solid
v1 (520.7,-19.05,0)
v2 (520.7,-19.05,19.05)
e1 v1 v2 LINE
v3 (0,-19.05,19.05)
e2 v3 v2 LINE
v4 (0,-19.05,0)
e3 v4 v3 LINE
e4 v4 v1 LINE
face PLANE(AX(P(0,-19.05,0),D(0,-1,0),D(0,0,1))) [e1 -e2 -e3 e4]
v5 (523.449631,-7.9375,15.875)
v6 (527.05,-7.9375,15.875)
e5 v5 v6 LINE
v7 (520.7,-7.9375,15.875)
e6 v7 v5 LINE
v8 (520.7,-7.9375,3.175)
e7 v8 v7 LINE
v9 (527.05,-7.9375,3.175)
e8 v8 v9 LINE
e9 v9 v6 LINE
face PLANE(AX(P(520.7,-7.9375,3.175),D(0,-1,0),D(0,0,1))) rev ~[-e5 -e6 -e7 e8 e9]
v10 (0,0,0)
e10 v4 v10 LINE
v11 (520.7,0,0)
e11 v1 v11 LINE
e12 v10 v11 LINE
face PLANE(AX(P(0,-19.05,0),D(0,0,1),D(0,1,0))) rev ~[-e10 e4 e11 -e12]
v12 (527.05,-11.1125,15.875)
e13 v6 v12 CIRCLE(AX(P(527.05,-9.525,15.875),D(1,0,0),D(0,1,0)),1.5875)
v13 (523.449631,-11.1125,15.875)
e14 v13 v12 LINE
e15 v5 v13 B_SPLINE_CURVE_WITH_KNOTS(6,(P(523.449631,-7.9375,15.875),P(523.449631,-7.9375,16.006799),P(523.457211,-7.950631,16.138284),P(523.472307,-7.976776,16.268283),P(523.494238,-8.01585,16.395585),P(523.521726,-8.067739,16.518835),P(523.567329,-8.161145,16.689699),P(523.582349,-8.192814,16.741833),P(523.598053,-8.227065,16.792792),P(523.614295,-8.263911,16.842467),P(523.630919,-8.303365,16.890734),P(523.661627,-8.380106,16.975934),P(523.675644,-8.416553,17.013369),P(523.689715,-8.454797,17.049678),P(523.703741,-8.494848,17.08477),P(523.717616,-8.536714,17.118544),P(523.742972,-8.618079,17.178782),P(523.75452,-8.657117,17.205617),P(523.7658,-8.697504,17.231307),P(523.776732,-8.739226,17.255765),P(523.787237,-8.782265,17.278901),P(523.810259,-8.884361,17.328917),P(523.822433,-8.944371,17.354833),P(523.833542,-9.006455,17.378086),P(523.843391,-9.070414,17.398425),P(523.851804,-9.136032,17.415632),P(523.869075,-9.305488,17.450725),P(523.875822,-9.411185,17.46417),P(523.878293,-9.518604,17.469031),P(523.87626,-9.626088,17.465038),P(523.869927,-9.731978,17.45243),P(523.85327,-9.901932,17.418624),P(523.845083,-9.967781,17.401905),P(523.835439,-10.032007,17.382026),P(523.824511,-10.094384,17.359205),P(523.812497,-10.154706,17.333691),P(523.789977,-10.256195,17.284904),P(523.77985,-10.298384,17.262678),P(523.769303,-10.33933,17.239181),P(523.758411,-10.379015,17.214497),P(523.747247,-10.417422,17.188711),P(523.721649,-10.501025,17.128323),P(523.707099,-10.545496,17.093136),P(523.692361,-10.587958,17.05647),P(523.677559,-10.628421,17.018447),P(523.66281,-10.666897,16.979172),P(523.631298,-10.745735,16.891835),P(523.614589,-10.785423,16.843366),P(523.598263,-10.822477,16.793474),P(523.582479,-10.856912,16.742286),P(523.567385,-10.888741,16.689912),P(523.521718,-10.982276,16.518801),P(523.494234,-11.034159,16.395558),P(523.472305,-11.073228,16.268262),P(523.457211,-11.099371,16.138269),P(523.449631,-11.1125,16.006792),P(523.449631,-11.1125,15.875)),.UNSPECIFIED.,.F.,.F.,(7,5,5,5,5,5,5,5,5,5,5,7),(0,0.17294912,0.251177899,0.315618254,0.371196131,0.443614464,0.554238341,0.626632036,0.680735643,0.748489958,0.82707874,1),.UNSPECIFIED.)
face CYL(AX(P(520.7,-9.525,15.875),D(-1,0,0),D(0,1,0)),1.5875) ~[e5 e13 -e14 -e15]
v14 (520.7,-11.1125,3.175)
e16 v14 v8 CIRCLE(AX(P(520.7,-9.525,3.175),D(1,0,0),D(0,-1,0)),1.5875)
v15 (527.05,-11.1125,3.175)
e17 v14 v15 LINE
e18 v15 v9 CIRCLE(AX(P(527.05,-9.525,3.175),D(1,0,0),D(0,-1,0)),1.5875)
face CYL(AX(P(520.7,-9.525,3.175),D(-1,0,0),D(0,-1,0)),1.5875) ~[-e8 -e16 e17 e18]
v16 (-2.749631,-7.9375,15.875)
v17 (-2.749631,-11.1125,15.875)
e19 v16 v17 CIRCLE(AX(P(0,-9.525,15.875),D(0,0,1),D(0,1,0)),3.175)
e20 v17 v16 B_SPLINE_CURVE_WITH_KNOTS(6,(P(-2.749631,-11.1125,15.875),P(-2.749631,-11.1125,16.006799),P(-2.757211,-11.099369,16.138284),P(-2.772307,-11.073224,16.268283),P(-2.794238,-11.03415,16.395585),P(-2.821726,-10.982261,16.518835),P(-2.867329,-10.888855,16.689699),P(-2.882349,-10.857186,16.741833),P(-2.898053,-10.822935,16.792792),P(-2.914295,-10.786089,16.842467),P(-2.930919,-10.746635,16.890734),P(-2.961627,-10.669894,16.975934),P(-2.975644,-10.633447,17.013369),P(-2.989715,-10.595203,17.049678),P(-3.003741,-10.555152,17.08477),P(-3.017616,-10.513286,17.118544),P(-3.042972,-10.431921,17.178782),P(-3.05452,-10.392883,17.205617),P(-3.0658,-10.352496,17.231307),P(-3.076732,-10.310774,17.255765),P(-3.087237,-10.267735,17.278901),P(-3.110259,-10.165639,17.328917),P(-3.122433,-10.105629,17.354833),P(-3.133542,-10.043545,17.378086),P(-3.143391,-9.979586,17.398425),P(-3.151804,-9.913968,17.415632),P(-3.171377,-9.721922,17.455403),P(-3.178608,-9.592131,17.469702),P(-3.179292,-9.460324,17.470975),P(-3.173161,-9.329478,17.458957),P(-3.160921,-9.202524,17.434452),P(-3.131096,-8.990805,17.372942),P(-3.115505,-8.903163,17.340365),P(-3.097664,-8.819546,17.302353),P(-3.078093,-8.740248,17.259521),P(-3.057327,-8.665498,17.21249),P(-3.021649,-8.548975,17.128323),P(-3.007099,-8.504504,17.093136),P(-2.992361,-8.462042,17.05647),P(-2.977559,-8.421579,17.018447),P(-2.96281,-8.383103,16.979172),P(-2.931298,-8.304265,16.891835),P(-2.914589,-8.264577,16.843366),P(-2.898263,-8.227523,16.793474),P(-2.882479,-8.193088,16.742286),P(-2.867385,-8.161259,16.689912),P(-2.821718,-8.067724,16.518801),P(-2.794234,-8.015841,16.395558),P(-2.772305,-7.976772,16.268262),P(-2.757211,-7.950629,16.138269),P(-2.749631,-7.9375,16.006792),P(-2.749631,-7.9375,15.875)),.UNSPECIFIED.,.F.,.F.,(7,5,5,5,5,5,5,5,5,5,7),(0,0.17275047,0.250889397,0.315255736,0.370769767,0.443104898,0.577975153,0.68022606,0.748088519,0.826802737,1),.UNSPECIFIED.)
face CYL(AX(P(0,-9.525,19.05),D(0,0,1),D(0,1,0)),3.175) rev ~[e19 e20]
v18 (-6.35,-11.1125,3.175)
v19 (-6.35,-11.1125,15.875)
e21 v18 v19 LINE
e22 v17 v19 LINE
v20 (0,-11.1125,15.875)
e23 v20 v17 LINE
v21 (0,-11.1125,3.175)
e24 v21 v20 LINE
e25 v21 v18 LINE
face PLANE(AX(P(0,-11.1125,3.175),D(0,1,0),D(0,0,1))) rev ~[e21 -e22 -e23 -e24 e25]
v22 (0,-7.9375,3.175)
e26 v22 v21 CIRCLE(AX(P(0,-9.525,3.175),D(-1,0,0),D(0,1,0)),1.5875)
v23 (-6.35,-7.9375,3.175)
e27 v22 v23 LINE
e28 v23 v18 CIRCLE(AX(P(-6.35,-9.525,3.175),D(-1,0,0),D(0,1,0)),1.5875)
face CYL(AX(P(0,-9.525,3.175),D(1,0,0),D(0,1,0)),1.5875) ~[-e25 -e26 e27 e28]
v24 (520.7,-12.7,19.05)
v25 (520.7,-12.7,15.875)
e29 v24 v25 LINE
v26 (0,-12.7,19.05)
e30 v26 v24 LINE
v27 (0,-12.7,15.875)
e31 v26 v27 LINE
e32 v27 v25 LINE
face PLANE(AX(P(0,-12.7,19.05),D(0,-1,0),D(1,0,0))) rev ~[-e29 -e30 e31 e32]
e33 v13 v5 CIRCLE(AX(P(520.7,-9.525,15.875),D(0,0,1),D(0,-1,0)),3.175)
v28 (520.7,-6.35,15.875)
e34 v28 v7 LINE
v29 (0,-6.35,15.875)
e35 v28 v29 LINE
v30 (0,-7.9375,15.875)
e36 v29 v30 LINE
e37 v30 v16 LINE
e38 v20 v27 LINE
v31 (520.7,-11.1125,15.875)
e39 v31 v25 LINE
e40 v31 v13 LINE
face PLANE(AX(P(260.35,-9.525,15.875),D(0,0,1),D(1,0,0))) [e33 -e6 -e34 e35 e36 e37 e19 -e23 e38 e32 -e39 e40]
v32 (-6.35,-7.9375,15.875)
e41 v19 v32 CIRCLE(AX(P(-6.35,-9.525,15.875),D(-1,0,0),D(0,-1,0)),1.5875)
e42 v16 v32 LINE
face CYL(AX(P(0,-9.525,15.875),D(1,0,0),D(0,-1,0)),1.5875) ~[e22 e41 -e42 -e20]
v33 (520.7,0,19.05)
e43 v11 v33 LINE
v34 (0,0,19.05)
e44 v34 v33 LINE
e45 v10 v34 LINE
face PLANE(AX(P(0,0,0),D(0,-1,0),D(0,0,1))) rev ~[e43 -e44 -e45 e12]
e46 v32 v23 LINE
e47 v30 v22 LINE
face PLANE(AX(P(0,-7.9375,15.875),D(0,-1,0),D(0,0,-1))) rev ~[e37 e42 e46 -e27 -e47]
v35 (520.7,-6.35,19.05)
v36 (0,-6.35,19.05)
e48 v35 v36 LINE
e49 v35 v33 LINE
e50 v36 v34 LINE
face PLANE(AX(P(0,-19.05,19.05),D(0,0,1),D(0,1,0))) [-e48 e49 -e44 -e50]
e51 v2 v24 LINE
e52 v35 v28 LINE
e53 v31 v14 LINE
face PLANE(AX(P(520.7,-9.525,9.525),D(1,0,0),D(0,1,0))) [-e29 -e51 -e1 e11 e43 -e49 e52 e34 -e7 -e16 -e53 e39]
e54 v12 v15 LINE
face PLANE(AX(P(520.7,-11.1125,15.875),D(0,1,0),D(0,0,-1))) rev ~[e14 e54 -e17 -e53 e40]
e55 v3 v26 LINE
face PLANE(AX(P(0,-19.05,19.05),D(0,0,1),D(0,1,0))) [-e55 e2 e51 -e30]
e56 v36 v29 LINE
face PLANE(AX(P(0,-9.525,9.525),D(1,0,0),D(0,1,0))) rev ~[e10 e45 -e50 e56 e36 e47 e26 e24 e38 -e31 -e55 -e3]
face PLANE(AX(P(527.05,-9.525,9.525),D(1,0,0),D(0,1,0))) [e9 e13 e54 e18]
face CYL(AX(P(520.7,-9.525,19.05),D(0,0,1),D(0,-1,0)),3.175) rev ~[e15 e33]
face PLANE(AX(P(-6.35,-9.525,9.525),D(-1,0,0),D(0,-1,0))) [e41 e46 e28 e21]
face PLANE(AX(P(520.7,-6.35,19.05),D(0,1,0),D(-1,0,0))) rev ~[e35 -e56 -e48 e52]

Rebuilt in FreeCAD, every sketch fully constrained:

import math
import FreeCAD as App
import Part
import Sketcher
from FreeCAD import Vector
Q = App.Units.Quantity

doc = App.newDocument("Part")
body = doc.addObject("PartDesign::Body", "Body")

# Sketch on YZ plane
sketch1 = doc.addObject("Sketcher::SketchObject", "Sketch")
body.addObject(sketch1)
sketch1.AttachmentSupport = (doc.YZ_Plane, [""])
sketch1.MapMode = "FlatFace"
sketch1.addGeometry(Part.LineSegment(Vector(-19, 19, 0), Vector(-19, 0, 0)), False)
sketch1.addGeometry(Part.LineSegment(Vector(-19, 0, 0), Vector(0, 0, 0)), False)
sketch1.addGeometry(Part.LineSegment(Vector(0, 0, 0), Vector(0, 19, 0)), False)
sketch1.addGeometry(Part.LineSegment(Vector(0, 19, 0), Vector(-19, 19, 0)), False)
sketch1.addConstraint(Sketcher.Constraint("Coincident", 0, 2, 1, 1))
sketch1.addConstraint(Sketcher.Constraint("Coincident", 1, 2, 2, 1))
sketch1.addConstraint(Sketcher.Constraint("Coincident", 2, 2, 3, 1))
sketch1.addConstraint(Sketcher.Constraint("Coincident", 3, 2, 0, 1))
sketch1.addConstraint(Sketcher.Constraint("Vertical", 0))
sketch1.addConstraint(Sketcher.Constraint("Horizontal", 1))
sketch1.addConstraint(Sketcher.Constraint("Vertical", 2))
sketch1.addConstraint(Sketcher.Constraint("Horizontal", 3))
sketch1.addConstraint(Sketcher.Constraint("Coincident", 1, 2, -1, 1))
sketch1.addConstraint(Sketcher.Constraint("Equal", 3, 0))
sketch1.addConstraint(Sketcher.Constraint("DistanceX", 1, 1, 1, 2, Q("0.75 in")))
pad1 = doc.addObject("PartDesign::Pad", "Pad")
body.addObject(pad1)
pad1.Profile = sketch1
pad1.Length = Q("20.5 in")

# Sketch on YZ plane
sketch2 = doc.addObject("Sketcher::SketchObject", "Sketch001")
body.addObject(sketch2)
sketch2.AttachmentSupport = (doc.YZ_Plane, [""])
sketch2.MapMode = "FlatFace"
sketch2.AttachmentOffset = App.Placement(Vector(0, 0, 20.5 * 25.4), App.Rotation())
sketch2.addGeometry(Part.ArcOfCircle(Part.Circle(Vector(-9.5, 15.9, 0), Vector(0, 0, 1), 1.6), math.radians(0), math.radians(180)), False)
sketch2.addGeometry(Part.LineSegment(Vector(-11.1, 15.9, 0), Vector(-11.1, 3.2, 0)), False)
sketch2.addGeometry(Part.ArcOfCircle(Part.Circle(Vector(-9.5, 3.2, 0), Vector(0, 0, 1), 1.6), math.radians(180), math.radians(360)), False)
sketch2.addGeometry(Part.LineSegment(Vector(-7.9, 3.2, 0), Vector(-7.9, 15.9, 0)), False)
sketch2.addConstraint(Sketcher.Constraint("Tangent", 0, 2, 1, 1))
sketch2.addConstraint(Sketcher.Constraint("Tangent", 1, 2, 2, 1))
sketch2.addConstraint(Sketcher.Constraint("Tangent", 2, 2, 3, 1))
sketch2.addConstraint(Sketcher.Constraint("Tangent", 3, 2, 0, 1))
sketch2.addConstraint(Sketcher.Constraint("Vertical", 1))
sketch2.addConstraint(Sketcher.Constraint("Vertical", 3))
sketch2.addConstraint(Sketcher.Constraint("DistanceY", 1, 2, 1, 1, Q("0.5 in")))
sketch2.addConstraint(Sketcher.Constraint("Radius", 0, Q("0.0625 in")))
sketch2.addConstraint(Sketcher.Constraint("DistanceX", 0, 3, -1, 1, Q("0.375 in")))
sketch2.addConstraint(Sketcher.Constraint("DistanceY", -1, 1, 0, 3, Q("0.625 in")))
pad2 = doc.addObject("PartDesign::Pad", "Pad001")
body.addObject(pad2)
pad2.Profile = sketch2
pad2.Length = Q("0.25 in")

# Sketch on YZ plane
sketch3 = doc.addObject("Sketcher::SketchObject", "Sketch002")
body.addObject(sketch3)
sketch3.AttachmentSupport = (doc.YZ_Plane, [""])
sketch3.MapMode = "FlatFace"
sketch3.addGeometry(Part.ArcOfCircle(Part.Circle(Vector(-9.5, 15.9, 0), Vector(0, 0, 1), 1.6), math.radians(0), math.radians(180)), False)
sketch3.addGeometry(Part.LineSegment(Vector(-7.9, 15.9, 0), Vector(-7.9, 3.2, 0)), False)
sketch3.addGeometry(Part.ArcOfCircle(Part.Circle(Vector(-9.5, 3.2, 0), Vector(0, 0, 1), 1.6), math.radians(180), math.radians(360)), False)
sketch3.addGeometry(Part.LineSegment(Vector(-11.1, 3.2, 0), Vector(-11.1, 15.9, 0)), False)
sketch3.addConstraint(Sketcher.Constraint("Tangent", 0, 1, 1, 1))
sketch3.addConstraint(Sketcher.Constraint("Tangent", 1, 2, 2, 2))
sketch3.addConstraint(Sketcher.Constraint("Tangent", 2, 1, 3, 1))
sketch3.addConstraint(Sketcher.Constraint("Tangent", 3, 2, 0, 2))
sketch3.addConstraint(Sketcher.Constraint("Vertical", 1))
sketch3.addConstraint(Sketcher.Constraint("Vertical", 3))
sketch3.addConstraint(Sketcher.Constraint("DistanceY", 1, 2, 1, 1, Q("0.5 in")))
sketch3.addConstraint(Sketcher.Constraint("Radius", 0, Q("0.0625 in")))
sketch3.addConstraint(Sketcher.Constraint("DistanceX", 0, 3, -1, 1, Q("0.375 in")))
sketch3.addConstraint(Sketcher.Constraint("DistanceY", -1, 1, 0, 3, Q("0.625 in")))
pad3 = doc.addObject("PartDesign::Pad", "Pad002")
body.addObject(pad3)
pad3.Profile = sketch3
pad3.Length = Q("0.25 in")
pad3.Reversed = True

# Sketch on XY plane
sketch4 = doc.addObject("Sketcher::SketchObject", "Sketch003")
body.addObject(sketch4)
sketch4.AttachmentSupport = (doc.XY_Plane, [""])
sketch4.MapMode = "FlatFace"
sketch4.AttachmentOffset = App.Placement(Vector(0, 0, 0.75 * 25.4), App.Rotation())
sketch4.addGeometry(Part.ArcOfCircle(Part.Circle(Vector(0, -9.5, 0), Vector(0, 0, 1), 3.2), math.radians(90), math.radians(270)), False)
sketch4.addGeometry(Part.LineSegment(Vector(0, -12.7, 0), Vector(520.7, -12.7, 0)), False)
sketch4.addGeometry(Part.ArcOfCircle(Part.Circle(Vector(520.7, -9.5, 0), Vector(0, 0, 1), 3.2), math.radians(-90), math.radians(90)), False)
sketch4.addGeometry(Part.LineSegment(Vector(520.7, -6.3, 0), Vector(0, -6.3, 0)), False)
sketch4.addConstraint(Sketcher.Constraint("Tangent", 0, 2, 1, 1))
sketch4.addConstraint(Sketcher.Constraint("Tangent", 1, 2, 2, 1))
sketch4.addConstraint(Sketcher.Constraint("Tangent", 2, 2, 3, 1))
sketch4.addConstraint(Sketcher.Constraint("Tangent", 3, 2, 0, 1))
sketch4.addConstraint(Sketcher.Constraint("Horizontal", 1))
sketch4.addConstraint(Sketcher.Constraint("Horizontal", 3))
sketch4.addConstraint(Sketcher.Constraint("PointOnObject", 0, 3, -2))
sketch4.addConstraint(Sketcher.Constraint("DistanceX", 1, 1, 1, 2, Q("20.5 in")))
sketch4.addConstraint(Sketcher.Constraint("Radius", 0, Q("0.125 in")))
sketch4.addConstraint(Sketcher.Constraint("DistanceY", 0, 2, -1, 1, Q("0.5 in")))
pocket1 = doc.addObject("PartDesign::Pocket", "Pocket")
body.addObject(pocket1)
pocket1.Profile = sketch4
pocket1.Length = Q("0.125 in")

doc.recompute()
